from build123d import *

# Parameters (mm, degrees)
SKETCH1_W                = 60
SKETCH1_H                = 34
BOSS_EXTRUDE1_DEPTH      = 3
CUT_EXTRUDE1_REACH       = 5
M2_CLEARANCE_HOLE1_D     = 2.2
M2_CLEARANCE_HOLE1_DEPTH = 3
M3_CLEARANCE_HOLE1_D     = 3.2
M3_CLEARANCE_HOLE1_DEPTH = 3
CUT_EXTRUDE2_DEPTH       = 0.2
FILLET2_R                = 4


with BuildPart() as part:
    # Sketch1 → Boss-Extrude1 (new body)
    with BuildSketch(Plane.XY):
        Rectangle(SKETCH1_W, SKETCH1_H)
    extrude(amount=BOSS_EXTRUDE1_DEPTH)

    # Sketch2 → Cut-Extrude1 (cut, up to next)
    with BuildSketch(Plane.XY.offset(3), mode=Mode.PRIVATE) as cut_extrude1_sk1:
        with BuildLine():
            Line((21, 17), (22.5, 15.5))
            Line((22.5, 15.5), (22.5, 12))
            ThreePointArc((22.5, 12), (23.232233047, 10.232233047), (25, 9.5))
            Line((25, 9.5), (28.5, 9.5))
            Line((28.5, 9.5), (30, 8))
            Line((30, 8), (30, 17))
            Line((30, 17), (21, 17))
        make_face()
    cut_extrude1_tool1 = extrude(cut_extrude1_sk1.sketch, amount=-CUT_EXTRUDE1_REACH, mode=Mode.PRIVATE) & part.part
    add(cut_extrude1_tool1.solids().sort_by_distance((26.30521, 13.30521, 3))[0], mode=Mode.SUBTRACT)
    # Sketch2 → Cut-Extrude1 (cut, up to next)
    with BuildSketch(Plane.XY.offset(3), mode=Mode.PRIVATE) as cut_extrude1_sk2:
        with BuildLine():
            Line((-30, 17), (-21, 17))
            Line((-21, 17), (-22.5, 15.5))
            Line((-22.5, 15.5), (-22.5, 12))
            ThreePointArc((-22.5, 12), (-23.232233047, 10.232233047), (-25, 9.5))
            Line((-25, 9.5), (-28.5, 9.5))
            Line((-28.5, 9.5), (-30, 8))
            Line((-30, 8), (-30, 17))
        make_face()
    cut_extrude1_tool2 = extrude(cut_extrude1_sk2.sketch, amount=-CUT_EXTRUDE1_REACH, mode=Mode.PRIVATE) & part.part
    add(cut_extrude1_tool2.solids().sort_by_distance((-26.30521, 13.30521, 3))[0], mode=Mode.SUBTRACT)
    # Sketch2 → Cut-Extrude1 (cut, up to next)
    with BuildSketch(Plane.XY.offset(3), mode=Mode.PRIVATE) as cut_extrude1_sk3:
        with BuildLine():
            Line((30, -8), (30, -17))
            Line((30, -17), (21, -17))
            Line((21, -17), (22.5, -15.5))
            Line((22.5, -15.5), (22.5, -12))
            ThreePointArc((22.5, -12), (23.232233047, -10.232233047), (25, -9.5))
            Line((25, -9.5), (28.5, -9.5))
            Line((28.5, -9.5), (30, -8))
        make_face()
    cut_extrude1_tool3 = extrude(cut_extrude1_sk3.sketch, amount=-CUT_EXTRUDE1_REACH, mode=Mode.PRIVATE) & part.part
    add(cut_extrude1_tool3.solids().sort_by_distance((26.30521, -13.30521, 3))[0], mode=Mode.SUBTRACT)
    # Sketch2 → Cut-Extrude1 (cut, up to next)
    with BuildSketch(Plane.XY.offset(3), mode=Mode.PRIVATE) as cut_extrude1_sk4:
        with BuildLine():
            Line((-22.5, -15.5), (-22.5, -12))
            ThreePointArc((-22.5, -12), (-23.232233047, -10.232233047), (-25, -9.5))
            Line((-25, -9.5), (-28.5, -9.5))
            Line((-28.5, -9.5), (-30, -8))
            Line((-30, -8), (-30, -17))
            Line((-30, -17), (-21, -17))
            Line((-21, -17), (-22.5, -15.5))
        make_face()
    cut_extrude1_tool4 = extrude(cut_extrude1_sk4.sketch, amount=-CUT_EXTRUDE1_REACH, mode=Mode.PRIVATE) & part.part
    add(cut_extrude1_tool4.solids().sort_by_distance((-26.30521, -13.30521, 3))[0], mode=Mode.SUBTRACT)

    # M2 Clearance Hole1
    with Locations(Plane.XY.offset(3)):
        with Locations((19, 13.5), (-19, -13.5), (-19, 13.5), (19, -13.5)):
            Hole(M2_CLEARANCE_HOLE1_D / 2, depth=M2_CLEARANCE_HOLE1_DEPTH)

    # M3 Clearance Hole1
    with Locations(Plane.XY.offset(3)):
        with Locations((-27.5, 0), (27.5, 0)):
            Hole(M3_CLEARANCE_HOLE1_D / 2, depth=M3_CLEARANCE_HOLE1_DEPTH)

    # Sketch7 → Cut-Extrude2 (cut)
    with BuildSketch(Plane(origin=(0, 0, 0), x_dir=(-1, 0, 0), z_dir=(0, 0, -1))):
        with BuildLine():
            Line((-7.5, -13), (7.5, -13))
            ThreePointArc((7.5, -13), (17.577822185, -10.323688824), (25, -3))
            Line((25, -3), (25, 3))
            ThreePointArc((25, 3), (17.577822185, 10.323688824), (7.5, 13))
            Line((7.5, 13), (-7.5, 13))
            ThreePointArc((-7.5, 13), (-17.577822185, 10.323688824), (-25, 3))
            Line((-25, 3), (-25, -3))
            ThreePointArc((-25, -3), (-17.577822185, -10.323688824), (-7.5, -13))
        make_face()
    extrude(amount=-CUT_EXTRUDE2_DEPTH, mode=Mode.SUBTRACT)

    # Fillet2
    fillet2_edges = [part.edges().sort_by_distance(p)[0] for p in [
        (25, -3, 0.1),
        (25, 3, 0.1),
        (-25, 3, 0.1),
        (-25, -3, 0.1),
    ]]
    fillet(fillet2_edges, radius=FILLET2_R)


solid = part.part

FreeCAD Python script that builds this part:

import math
import FreeCAD as App
import Part
import Sketcher


def edges_at(feature, points):
    """Names of the edges that pass closest to the given points."""
    edges = feature.Shape.Edges
    near = lambda p: min(range(len(edges)), key=lambda i: edges[i].distToShape(Part.Vertex(*p))[0])
    return sorted({f"Edge{near(p) + 1}" for p in points})


def add_polygon(sketch, points):
    """Adds a closed chain of lines whose ends are joined by coincident constraints."""
    first, n = sketch.GeometryCount, len(points)
    for a, b in zip(points, points[1:] + points[:1]):
        sketch.addGeometry(Part.LineSegment(App.Vector(*a, 0), App.Vector(*b, 0)), False)
    for i in range(n):
        sketch.addConstraint(Sketcher.Constraint("Coincident", first + i, 2, first + (i + 1) % n, 1))

doc = App.newDocument("Part")
body = doc.addObject("PartDesign::Body", "Body")

# Sketch on XY plane
sketch1 = doc.addObject("Sketcher::SketchObject", "Sketch")
body.addObject(sketch1)
sketch1.AttachmentSupport = (doc.XY_Plane, [""])
sketch1.MapMode = "FlatFace"
add_polygon(sketch1, [(-30, 17), (-30, -17), (30, -17), (30, 17)])  # lines 0-3
sketch1.addConstraint([
    Sketcher.Constraint("Vertical", 0),
    Sketcher.Constraint("Horizontal", 1),
    Sketcher.Constraint("Vertical", 2),
    Sketcher.Constraint("Horizontal", 3),
    Sketcher.Constraint("Symmetric", 0, 2, 2, 2, -1, 1),
    Sketcher.Constraint("DistanceX", 1, 1, 1, 2, 60.0),
    Sketcher.Constraint("DistanceY", 0, 2, 0, 1, 34.0),
])
pad1 = doc.addObject("PartDesign::Pad", "Pad")
body.addObject(pad1)
pad1.Profile = sketch1
pad1.Length = 3

# Sketch on XY plane
sketch2 = doc.addObject("Sketcher::SketchObject", "Sketch001")
body.addObject(sketch2)
sketch2.AttachmentSupport = (doc.XY_Plane, [""])
sketch2.MapMode = "FlatFace"
sketch2.AttachmentOffset = App.Placement(App.Vector(0, 0, 3), App.Rotation())
sketch2.addGeometry([
    Part.LineSegment(App.Vector(21, 17, 0), App.Vector(22.5, 15.5, 0)),  # 0
    Part.LineSegment(App.Vector(22.5, 15.5, 0), App.Vector(22.5, 12, 0)),  # 1
    Part.ArcOfCircle(Part.Circle(App.Vector(25, 12, 0), App.Vector(0, 0, 1), 2.5), math.radians(180), math.radians(270)),  # 2
    Part.LineSegment(App.Vector(25, 9.5, 0), App.Vector(28.5, 9.5, 0)),  # 3
    Part.LineSegment(App.Vector(28.5, 9.5, 0), App.Vector(30, 8, 0)),  # 4
    Part.LineSegment(App.Vector(30, 8, 0), App.Vector(30, 17, 0)),  # 5
    Part.LineSegment(App.Vector(30, 17, 0), App.Vector(21, 17, 0)),  # 6
], False)
sketch2.addConstraint([
    Sketcher.Constraint("Coincident", 0, 2, 1, 1),
    Sketcher.Constraint("Tangent", 1, 2, 2, 1),
    Sketcher.Constraint("Tangent", 2, 2, 3, 1),
    Sketcher.Constraint("Coincident", 3, 2, 4, 1),
    Sketcher.Constraint("Coincident", 4, 2, 5, 1),
    Sketcher.Constraint("Coincident", 5, 2, 6, 1),
    Sketcher.Constraint("Coincident", 6, 2, 0, 1),
    Sketcher.Constraint("Vertical", 1),
    Sketcher.Constraint("Horizontal", 3),
    Sketcher.Constraint("Vertical", 5),
    Sketcher.Constraint("Horizontal", 6),
    Sketcher.Constraint("Parallel", 0, 4),
    Sketcher.Constraint("Equal", 3, 1),
    Sketcher.Constraint("Equal", 6, 5),
    Sketcher.Constraint("Equal", 0, 4),
    Sketcher.Constraint("Radius", 2, 2.5),
    Sketcher.Constraint("DistanceX", 6, 2, 6, 1, 9.0),
    Sketcher.Constraint("DistanceX", 3, 1, 3, 2, 3.5),
    Sketcher.Constraint("DistanceX", -1, 1, 2, 3, 25.0),
    Sketcher.Constraint("DistanceY", -1, 1, 2, 3, 12.0),
])
pocket1 = doc.addObject("PartDesign::Pocket", "Pocket")
body.addObject(pocket1)
pocket1.Profile = sketch2
pocket1.Type = "UpToFirst"

# Sketch on XY plane
sketch3 = doc.addObject("Sketcher::SketchObject", "Sketch002")
body.addObject(sketch3)
sketch3.AttachmentSupport = (doc.XY_Plane, [""])
sketch3.MapMode = "FlatFace"
sketch3.AttachmentOffset = App.Placement(App.Vector(0, 0, 3), App.Rotation())
sketch3.addGeometry([
    Part.LineSegment(App.Vector(-21, 17, 0), App.Vector(-30, 17, 0)),  # 0
    Part.LineSegment(App.Vector(-30, 17, 0), App.Vector(-30, 8, 0)),  # 1
    Part.LineSegment(App.Vector(-30, 8, 0), App.Vector(-28.5, 9.5, 0)),  # 2
    Part.LineSegment(App.Vector(-28.5, 9.5, 0), App.Vector(-25, 9.5, 0)),  # 3
    Part.ArcOfCircle(Part.Circle(App.Vector(-25, 12, 0), App.Vector(0, 0, 1), 2.5), math.radians(-90), math.radians(0)),  # 4
    Part.LineSegment(App.Vector(-22.5, 12, 0), App.Vector(-22.5, 15.5, 0)),  # 5
    Part.LineSegment(App.Vector(-22.5, 15.5, 0), App.Vector(-21, 17, 0)),  # 6
], False)
sketch3.addConstraint([
    Sketcher.Constraint("Coincident", 0, 2, 1, 1),
    Sketcher.Constraint("Coincident", 1, 2, 2, 1),
    Sketcher.Constraint("Coincident", 2, 2, 3, 1),
    Sketcher.Constraint("Tangent", 3, 2, 4, 1),
    Sketcher.Constraint("Tangent", 4, 2, 5, 1),
    Sketcher.Constraint("Coincident", 5, 2, 6, 1),
    Sketcher.Constraint("Coincident", 6, 2, 0, 1),
    Sketcher.Constraint("Horizontal", 0),
    Sketcher.Constraint("Vertical", 1),
    Sketcher.Constraint("Horizontal", 3),
    Sketcher.Constraint("Vertical", 5),
    Sketcher.Constraint("Parallel", 2, 6),
    Sketcher.Constraint("Equal", 0, 1),
    Sketcher.Constraint("Equal", 3, 5),
    Sketcher.Constraint("Equal", 2, 6),
    Sketcher.Constraint("Radius", 4, 2.5),
    Sketcher.Constraint("DistanceX", 0, 2, 0, 1, 9.0),
    Sketcher.Constraint("DistanceX", 3, 1, 3, 2, 3.5),
    Sketcher.Constraint("DistanceX", 4, 3, -1, 1, 25.0),
    Sketcher.Constraint("DistanceY", -1, 1, 4, 3, 12.0),
])
pocket2 = doc.addObject("PartDesign::Pocket", "Pocket001")
body.addObject(pocket2)
pocket2.Profile = sketch3
pocket2.Type = "UpToFirst"

# Sketch on XY plane
sketch4 = doc.addObject("Sketcher::SketchObject", "Sketch003")
body.addObject(sketch4)
sketch4.AttachmentSupport = (doc.XY_Plane, [""])
sketch4.MapMode = "FlatFace"
sketch4.AttachmentOffset = App.Placement(App.Vector(0, 0, 3), App.Rotation())
sketch4.addGeometry([
    Part.LineSegment(App.Vector(30, -17, 0), App.Vector(30, -8, 0)),  # 0
    Part.LineSegment(App.Vector(30, -8, 0), App.Vector(28.5, -9.5, 0)),  # 1
    Part.LineSegment(App.Vector(28.5, -9.5, 0), App.Vector(25, -9.5, 0)),  # 2
    Part.ArcOfCircle(Part.Circle(App.Vector(25, -12, 0), App.Vector(0, 0, 1), 2.5), math.radians(90), math.radians(180)),  # 3
    Part.LineSegment(App.Vector(22.5, -12, 0), App.Vector(22.5, -15.5, 0)),  # 4
    Part.LineSegment(App.Vector(22.5, -15.5, 0), App.Vector(21, -17, 0)),  # 5
    Part.LineSegment(App.Vector(21, -17, 0), App.Vector(30, -17, 0)),  # 6
], False)
sketch4.addConstraint([
    Sketcher.Constraint("Coincident", 0, 2, 1, 1),
    Sketcher.Constraint("Coincident", 1, 2, 2, 1),
    Sketcher.Constraint("Tangent", 2, 2, 3, 1),
    Sketcher.Constraint("Tangent", 3, 2, 4, 1),
    Sketcher.Constraint("Coincident", 4, 2, 5, 1),
    Sketcher.Constraint("Coincident", 5, 2, 6, 1),
    Sketcher.Constraint("Coincident", 6, 2, 0, 1),
    Sketcher.Constraint("Vertical", 0),
    Sketcher.Constraint("Horizontal", 2),
    Sketcher.Constraint("Vertical", 4),
    Sketcher.Constraint("Horizontal", 6),
    Sketcher.Constraint("Parallel", 1, 5),
    Sketcher.Constraint("Equal", 6, 0),
    Sketcher.Constraint("Equal", 2, 4),
    Sketcher.Constraint("Equal", 1, 5),
    Sketcher.Constraint("Radius", 3, 2.5),
    Sketcher.Constraint("DistanceX", 6, 1, 6, 2, 9.0),
    Sketcher.Constraint("DistanceX", 2, 2, 2, 1, 3.5),
    Sketcher.Constraint("DistanceX", -1, 1, 3, 3, 25.0),
    Sketcher.Constraint("DistanceY", 3, 3, -1, 1, 12.0),
])
pocket3 = doc.addObject("PartDesign::Pocket", "Pocket002")
body.addObject(pocket3)
pocket3.Profile = sketch4
pocket3.Type = "UpToFirst"

# Sketch on XY plane
sketch5 = doc.addObject("Sketcher::SketchObject", "Sketch004")
body.addObject(sketch5)
sketch5.AttachmentSupport = (doc.XY_Plane, [""])
sketch5.MapMode = "FlatFace"
sketch5.AttachmentOffset = App.Placement(App.Vector(0, 0, 3), App.Rotation())
sketch5.addGeometry([
    Part.LineSegment(App.Vector(-22.5, -15.5, 0), App.Vector(-22.5, -12, 0)),  # 0
    Part.ArcOfCircle(Part.Circle(App.Vector(-25, -12, 0), App.Vector(0, 0, 1), 2.5), math.radians(0), math.radians(90)),  # 1
    Part.LineSegment(App.Vector(-25, -9.5, 0), App.Vector(-28.5, -9.5, 0)),  # 2
    Part.LineSegment(App.Vector(-28.5, -9.5, 0), App.Vector(-30, -8, 0)),  # 3
    Part.LineSegment(App.Vector(-30, -8, 0), App.Vector(-30, -17, 0)),  # 4
    Part.LineSegment(App.Vector(-30, -17, 0), App.Vector(-21, -17, 0)),  # 5
    Part.LineSegment(App.Vector(-21, -17, 0), App.Vector(-22.5, -15.5, 0)),  # 6
], False)
sketch5.addConstraint([
    Sketcher.Constraint("Tangent", 0, 2, 1, 1),
    Sketcher.Constraint("Tangent", 1, 2, 2, 1),
    Sketcher.Constraint("Coincident", 2, 2, 3, 1),
    Sketcher.Constraint("Coincident", 3, 2, 4, 1),
    Sketcher.Constraint("Coincident", 4, 2, 5, 1),
    Sketcher.Constraint("Coincident", 5, 2, 6, 1),
    Sketcher.Constraint("Coincident", 6, 2, 0, 1),
    Sketcher.Constraint("Vertical", 0),
    Sketcher.Constraint("Horizontal", 2),
    Sketcher.Constraint("Vertical", 4),
    Sketcher.Constraint("Horizontal", 5),
    Sketcher.Constraint("Parallel", 3, 6),
    Sketcher.Constraint("Equal", 2, 0),
    Sketcher.Constraint("Equal", 5, 4),
    Sketcher.Constraint("Equal", 3, 6),
    Sketcher.Constraint("Radius", 1, 2.5),
    Sketcher.Constraint("DistanceX", 5, 1, 5, 2, 9.0),
    Sketcher.Constraint("DistanceX", 2, 2, 2, 1, 3.5),
    Sketcher.Constraint("DistanceX", 1, 3, -1, 1, 25.0),
    Sketcher.Constraint("DistanceY", 1, 3, -1, 1, 12.0),
])
pocket4 = doc.addObject("PartDesign::Pocket", "Pocket003")
body.addObject(pocket4)
pocket4.Profile = sketch5
pocket4.Type = "UpToFirst"

# Sketch on XY plane
sketch6 = doc.addObject("Sketcher::SketchObject", "Sketch005")
body.addObject(sketch6)
sketch6.AttachmentSupport = (doc.XY_Plane, [""])
sketch6.MapMode = "FlatFace"
sketch6.AttachmentOffset = App.Placement(App.Vector(0, 0, 3), App.Rotation())
sketch6.addGeometry([
    Part.Circle(App.Vector(19, 13.5, 0), App.Vector(0, 0, 1), 1.1),
    Part.Circle(App.Vector(-19, -13.5, 0), App.Vector(0, 0, 1), 1.1),
    Part.Circle(App.Vector(-19, 13.5, 0), App.Vector(0, 0, 1), 1.1),
    Part.Circle(App.Vector(19, -13.5, 0), App.Vector(0, 0, 1), 1.1),
], False)
sketch6.addConstraint([
    Sketcher.Constraint("Equal", 0, 1),
    Sketcher.Constraint("Equal", 1, 2),
    Sketcher.Constraint("Equal", 2, 3),
    Sketcher.Constraint("Symmetric", 0, 3, 1, 3, -1, 1),
    Sketcher.Constraint("Symmetric", 2, 3, 3, 3, -1, 1),
    Sketcher.Constraint("Symmetric", 0, 3, 2, 3, -2),
    Sketcher.Constraint("Diameter", 0, 2.2),
    Sketcher.Constraint("DistanceX", -1, 1, 0, 3, 19.0),
    Sketcher.Constraint("DistanceY", 1, 3, 0, 3, 27.0),
])
doc.recompute()
hole = doc.addObject("PartDesign::Hole", "Hole")
body.addObject(hole)
hole.Profile = sketch6
hole.ThreadType = "None"
hole.Diameter = 2.2
hole.DepthType = "Dimension"
hole.Depth = 3
hole.DrillPoint = "Flat"

# Sketch on XY plane
sketch7 = doc.addObject("Sketcher::SketchObject", "Sketch006")
body.addObject(sketch7)
sketch7.AttachmentSupport = (doc.XY_Plane, [""])
sketch7.MapMode = "FlatFace"
sketch7.AttachmentOffset = App.Placement(App.Vector(0, 0, 3), App.Rotation())
sketch7.addGeometry([
    Part.Circle(App.Vector(-27.5, 0, 0), App.Vector(0, 0, 1), 1.6),
    Part.Circle(App.Vector(27.5, 0, 0), App.Vector(0, 0, 1), 1.6),
], False)
sketch7.addConstraint([
    Sketcher.Constraint("Equal", 0, 1),
    Sketcher.Constraint("Symmetric", 0, 3, 1, 3, -1, 1),
    Sketcher.Constraint("PointOnObject", 0, 3, -1),
    Sketcher.Constraint("Diameter", 0, 3.2),
    Sketcher.Constraint("DistanceX", 0, 3, 1, 3, 55.0),
])
doc.recompute()
hole2 = doc.addObject("PartDesign::Hole", "Hole001")
body.addObject(hole2)
hole2.Profile = sketch7
hole2.ThreadType = "None"
hole2.Diameter = 3.2
hole2.DepthType = "Dimension"
hole2.Depth = 3
hole2.DrillPoint = "Flat"

# Sketch on XY plane
sketch8 = doc.addObject("Sketcher::SketchObject", "Sketch007")
body.addObject(sketch8)
sketch8.AttachmentSupport = (doc.XY_Plane, [""])
sketch8.MapMode = "FlatFace"
sketch8.addGeometry([
    Part.LineSegment(App.Vector(7.5, -13, 0), App.Vector(-7.5, -13, 0)),  # 0
    Part.ArcOfCircle(Part.Circle(App.Vector(-7.5, 7.3125, 0), App.Vector(0, 0, 1), 20.3125), math.radians(-149.489763), math.radians(-90)),  # 1
    Part.LineSegment(App.Vector(-25, -3, 0), App.Vector(-25, 3, 0)),  # 2
    Part.ArcOfCircle(Part.Circle(App.Vector(-7.5, -7.3125, 0), App.Vector(0, 0, 1), 20.3125), math.radians(90), math.radians(149.489763)),  # 3
    Part.LineSegment(App.Vector(-7.5, 13, 0), App.Vector(7.5, 13, 0)),  # 4
    Part.ArcOfCircle(Part.Circle(App.Vector(7.5, -7.3125, 0), App.Vector(0, 0, 1), 20.3125), math.radians(30.510237), math.radians(90)),  # 5
    Part.LineSegment(App.Vector(25, 3, 0), App.Vector(25, -3, 0)),  # 6
    Part.ArcOfCircle(Part.Circle(App.Vector(7.5, 7.3125, 0), App.Vector(0, 0, 1), 20.3125), math.radians(-90), math.radians(-30.510237)),  # 7
], False)
sketch8.addConstraint([
    Sketcher.Constraint("Tangent", 0, 2, 1, 2),
    Sketcher.Constraint("Coincident", 1, 1, 2, 1),
    Sketcher.Constraint("Coincident", 2, 2, 3, 2),
    Sketcher.Constraint("Tangent", 3, 1, 4, 1),
    Sketcher.Constraint("Tangent", 4, 2, 5, 2),
    Sketcher.Constraint("Coincident", 5, 1, 6, 1),
    Sketcher.Constraint("Coincident", 6, 2, 7, 2),
    Sketcher.Constraint("Tangent", 7, 1, 0, 1),
    Sketcher.Constraint("Horizontal", 0),
    Sketcher.Constraint("Vertical", 2),
    Sketcher.Constraint("Horizontal", 4),
    Sketcher.Constraint("Vertical", 6),
    Sketcher.Constraint("Equal", 1, 3),
    Sketcher.Constraint("Equal", 3, 5),
    Sketcher.Constraint("Equal", 5, 7),
    Sketcher.Constraint("Symmetric", 1, 3, 5, 3, -1, 1),
    Sketcher.Constraint("Symmetric", 2, 2, 6, 2, -1, 1),
    Sketcher.Constraint("Horizontal", 2, 2, 5, 1),
    Sketcher.Constraint("DistanceX", 0, 2, 0, 1, 15.0),
    Sketcher.Constraint("DistanceY", 2, 1, 2, 2, 6.0),
    Sketcher.Constraint("DistanceY", 0, 2, -1, 1, 13.0),
    Sketcher.Constraint("DistanceX", 1, 1, -1, 1, 25.0),
])
pocket5 = doc.addObject("PartDesign::Pocket", "Pocket004")
body.addObject(pocket5)
pocket5.Profile = sketch8
pocket5.Length = 0.2
pocket5.Reversed = True
doc.recompute()

fillet = doc.addObject("PartDesign::Fillet", "Fillet")
body.addObject(fillet)
fillet.Base = (pocket5, edges_at(pocket5, [
    (25, -3, 0.1),
    (25, 3, 0.1),
    (-25, 3, 0.1),
    (-25, -3, 0.1),
]))
fillet.Radius = 4

doc.recompute()
